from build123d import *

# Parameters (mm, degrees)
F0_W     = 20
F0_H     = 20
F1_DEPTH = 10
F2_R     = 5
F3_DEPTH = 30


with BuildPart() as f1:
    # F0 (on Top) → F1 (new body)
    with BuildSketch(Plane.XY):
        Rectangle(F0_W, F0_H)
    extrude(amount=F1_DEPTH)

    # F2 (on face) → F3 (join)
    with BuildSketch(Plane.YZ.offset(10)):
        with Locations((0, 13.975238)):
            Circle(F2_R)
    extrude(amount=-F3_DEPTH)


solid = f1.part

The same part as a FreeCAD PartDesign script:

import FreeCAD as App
import Part
import Sketcher

V = App.Vector
Q = App.Units.Quantity

doc = App.newDocument("Part")
body = doc.addObject("PartDesign::Body", "Body")

sketch1 = body.newObject("Sketcher::SketchObject", "Sketch")
sketch1.AttachmentSupport = (doc.getObject("XY_Plane"), [""])
sketch1.MapMode = "FlatFace"
sketch1.addGeometry([
    Part.LineSegment(V(-10, 10, 0), V(-10, -10, 0)),
    Part.LineSegment(V(-10, -10, 0), V(10, -10, 0)),
    Part.LineSegment(V(10, -10, 0), V(10, 10, 0)),
    Part.LineSegment(V(10, 10, 0), V(-10, 10, 0)),
], False)
sketch1.addConstraint([
    Sketcher.Constraint("Coincident", 0, 2, 1, 1),
    Sketcher.Constraint("Coincident", 1, 2, 2, 1),
    Sketcher.Constraint("Coincident", 2, 2, 3, 1),
    Sketcher.Constraint("Coincident", 3, 2, 0, 1),
    Sketcher.Constraint("Vertical", 0),
    Sketcher.Constraint("Horizontal", 1),
    Sketcher.Constraint("Vertical", 2),
    Sketcher.Constraint("Horizontal", 3),
    Sketcher.Constraint("Symmetric", 0, 2, 2, 2, -1, 1),
    Sketcher.Constraint("Equal", 3, 0),
    Sketcher.Constraint("DistanceX", 1, 1, 1, 2, Q("20 mm")),
])
pad1 = body.newObject("PartDesign::Pad", "Pad")
pad1.Profile = sketch1
pad1.Length = 10

sketch2 = body.newObject("Sketcher::SketchObject", "Sketch001")
sketch2.AttachmentSupport = (doc.getObject("YZ_Plane"), [""])
sketch2.MapMode = "FlatFace"
sketch2.AttachmentOffset = App.Placement(V(0, 0, 10), App.Rotation())
sketch2.addGeometry(Part.Circle(V(0, 13.975238, 0), V(0, 0, 1), 5), False)
sketch2.addConstraint([
    Sketcher.Constraint("PointOnObject", 0, 3, -2),
    Sketcher.Constraint("Diameter", 0, Q("10 mm")),
    Sketcher.Constraint("DistanceY", -1, 1, 0, 3, Q("13.975238 mm")),
])
pad2 = body.newObject("PartDesign::Pad", "Pad001")
pad2.Profile = sketch2
pad2.Length = 30
pad2.Reversed = True

doc.recompute()
